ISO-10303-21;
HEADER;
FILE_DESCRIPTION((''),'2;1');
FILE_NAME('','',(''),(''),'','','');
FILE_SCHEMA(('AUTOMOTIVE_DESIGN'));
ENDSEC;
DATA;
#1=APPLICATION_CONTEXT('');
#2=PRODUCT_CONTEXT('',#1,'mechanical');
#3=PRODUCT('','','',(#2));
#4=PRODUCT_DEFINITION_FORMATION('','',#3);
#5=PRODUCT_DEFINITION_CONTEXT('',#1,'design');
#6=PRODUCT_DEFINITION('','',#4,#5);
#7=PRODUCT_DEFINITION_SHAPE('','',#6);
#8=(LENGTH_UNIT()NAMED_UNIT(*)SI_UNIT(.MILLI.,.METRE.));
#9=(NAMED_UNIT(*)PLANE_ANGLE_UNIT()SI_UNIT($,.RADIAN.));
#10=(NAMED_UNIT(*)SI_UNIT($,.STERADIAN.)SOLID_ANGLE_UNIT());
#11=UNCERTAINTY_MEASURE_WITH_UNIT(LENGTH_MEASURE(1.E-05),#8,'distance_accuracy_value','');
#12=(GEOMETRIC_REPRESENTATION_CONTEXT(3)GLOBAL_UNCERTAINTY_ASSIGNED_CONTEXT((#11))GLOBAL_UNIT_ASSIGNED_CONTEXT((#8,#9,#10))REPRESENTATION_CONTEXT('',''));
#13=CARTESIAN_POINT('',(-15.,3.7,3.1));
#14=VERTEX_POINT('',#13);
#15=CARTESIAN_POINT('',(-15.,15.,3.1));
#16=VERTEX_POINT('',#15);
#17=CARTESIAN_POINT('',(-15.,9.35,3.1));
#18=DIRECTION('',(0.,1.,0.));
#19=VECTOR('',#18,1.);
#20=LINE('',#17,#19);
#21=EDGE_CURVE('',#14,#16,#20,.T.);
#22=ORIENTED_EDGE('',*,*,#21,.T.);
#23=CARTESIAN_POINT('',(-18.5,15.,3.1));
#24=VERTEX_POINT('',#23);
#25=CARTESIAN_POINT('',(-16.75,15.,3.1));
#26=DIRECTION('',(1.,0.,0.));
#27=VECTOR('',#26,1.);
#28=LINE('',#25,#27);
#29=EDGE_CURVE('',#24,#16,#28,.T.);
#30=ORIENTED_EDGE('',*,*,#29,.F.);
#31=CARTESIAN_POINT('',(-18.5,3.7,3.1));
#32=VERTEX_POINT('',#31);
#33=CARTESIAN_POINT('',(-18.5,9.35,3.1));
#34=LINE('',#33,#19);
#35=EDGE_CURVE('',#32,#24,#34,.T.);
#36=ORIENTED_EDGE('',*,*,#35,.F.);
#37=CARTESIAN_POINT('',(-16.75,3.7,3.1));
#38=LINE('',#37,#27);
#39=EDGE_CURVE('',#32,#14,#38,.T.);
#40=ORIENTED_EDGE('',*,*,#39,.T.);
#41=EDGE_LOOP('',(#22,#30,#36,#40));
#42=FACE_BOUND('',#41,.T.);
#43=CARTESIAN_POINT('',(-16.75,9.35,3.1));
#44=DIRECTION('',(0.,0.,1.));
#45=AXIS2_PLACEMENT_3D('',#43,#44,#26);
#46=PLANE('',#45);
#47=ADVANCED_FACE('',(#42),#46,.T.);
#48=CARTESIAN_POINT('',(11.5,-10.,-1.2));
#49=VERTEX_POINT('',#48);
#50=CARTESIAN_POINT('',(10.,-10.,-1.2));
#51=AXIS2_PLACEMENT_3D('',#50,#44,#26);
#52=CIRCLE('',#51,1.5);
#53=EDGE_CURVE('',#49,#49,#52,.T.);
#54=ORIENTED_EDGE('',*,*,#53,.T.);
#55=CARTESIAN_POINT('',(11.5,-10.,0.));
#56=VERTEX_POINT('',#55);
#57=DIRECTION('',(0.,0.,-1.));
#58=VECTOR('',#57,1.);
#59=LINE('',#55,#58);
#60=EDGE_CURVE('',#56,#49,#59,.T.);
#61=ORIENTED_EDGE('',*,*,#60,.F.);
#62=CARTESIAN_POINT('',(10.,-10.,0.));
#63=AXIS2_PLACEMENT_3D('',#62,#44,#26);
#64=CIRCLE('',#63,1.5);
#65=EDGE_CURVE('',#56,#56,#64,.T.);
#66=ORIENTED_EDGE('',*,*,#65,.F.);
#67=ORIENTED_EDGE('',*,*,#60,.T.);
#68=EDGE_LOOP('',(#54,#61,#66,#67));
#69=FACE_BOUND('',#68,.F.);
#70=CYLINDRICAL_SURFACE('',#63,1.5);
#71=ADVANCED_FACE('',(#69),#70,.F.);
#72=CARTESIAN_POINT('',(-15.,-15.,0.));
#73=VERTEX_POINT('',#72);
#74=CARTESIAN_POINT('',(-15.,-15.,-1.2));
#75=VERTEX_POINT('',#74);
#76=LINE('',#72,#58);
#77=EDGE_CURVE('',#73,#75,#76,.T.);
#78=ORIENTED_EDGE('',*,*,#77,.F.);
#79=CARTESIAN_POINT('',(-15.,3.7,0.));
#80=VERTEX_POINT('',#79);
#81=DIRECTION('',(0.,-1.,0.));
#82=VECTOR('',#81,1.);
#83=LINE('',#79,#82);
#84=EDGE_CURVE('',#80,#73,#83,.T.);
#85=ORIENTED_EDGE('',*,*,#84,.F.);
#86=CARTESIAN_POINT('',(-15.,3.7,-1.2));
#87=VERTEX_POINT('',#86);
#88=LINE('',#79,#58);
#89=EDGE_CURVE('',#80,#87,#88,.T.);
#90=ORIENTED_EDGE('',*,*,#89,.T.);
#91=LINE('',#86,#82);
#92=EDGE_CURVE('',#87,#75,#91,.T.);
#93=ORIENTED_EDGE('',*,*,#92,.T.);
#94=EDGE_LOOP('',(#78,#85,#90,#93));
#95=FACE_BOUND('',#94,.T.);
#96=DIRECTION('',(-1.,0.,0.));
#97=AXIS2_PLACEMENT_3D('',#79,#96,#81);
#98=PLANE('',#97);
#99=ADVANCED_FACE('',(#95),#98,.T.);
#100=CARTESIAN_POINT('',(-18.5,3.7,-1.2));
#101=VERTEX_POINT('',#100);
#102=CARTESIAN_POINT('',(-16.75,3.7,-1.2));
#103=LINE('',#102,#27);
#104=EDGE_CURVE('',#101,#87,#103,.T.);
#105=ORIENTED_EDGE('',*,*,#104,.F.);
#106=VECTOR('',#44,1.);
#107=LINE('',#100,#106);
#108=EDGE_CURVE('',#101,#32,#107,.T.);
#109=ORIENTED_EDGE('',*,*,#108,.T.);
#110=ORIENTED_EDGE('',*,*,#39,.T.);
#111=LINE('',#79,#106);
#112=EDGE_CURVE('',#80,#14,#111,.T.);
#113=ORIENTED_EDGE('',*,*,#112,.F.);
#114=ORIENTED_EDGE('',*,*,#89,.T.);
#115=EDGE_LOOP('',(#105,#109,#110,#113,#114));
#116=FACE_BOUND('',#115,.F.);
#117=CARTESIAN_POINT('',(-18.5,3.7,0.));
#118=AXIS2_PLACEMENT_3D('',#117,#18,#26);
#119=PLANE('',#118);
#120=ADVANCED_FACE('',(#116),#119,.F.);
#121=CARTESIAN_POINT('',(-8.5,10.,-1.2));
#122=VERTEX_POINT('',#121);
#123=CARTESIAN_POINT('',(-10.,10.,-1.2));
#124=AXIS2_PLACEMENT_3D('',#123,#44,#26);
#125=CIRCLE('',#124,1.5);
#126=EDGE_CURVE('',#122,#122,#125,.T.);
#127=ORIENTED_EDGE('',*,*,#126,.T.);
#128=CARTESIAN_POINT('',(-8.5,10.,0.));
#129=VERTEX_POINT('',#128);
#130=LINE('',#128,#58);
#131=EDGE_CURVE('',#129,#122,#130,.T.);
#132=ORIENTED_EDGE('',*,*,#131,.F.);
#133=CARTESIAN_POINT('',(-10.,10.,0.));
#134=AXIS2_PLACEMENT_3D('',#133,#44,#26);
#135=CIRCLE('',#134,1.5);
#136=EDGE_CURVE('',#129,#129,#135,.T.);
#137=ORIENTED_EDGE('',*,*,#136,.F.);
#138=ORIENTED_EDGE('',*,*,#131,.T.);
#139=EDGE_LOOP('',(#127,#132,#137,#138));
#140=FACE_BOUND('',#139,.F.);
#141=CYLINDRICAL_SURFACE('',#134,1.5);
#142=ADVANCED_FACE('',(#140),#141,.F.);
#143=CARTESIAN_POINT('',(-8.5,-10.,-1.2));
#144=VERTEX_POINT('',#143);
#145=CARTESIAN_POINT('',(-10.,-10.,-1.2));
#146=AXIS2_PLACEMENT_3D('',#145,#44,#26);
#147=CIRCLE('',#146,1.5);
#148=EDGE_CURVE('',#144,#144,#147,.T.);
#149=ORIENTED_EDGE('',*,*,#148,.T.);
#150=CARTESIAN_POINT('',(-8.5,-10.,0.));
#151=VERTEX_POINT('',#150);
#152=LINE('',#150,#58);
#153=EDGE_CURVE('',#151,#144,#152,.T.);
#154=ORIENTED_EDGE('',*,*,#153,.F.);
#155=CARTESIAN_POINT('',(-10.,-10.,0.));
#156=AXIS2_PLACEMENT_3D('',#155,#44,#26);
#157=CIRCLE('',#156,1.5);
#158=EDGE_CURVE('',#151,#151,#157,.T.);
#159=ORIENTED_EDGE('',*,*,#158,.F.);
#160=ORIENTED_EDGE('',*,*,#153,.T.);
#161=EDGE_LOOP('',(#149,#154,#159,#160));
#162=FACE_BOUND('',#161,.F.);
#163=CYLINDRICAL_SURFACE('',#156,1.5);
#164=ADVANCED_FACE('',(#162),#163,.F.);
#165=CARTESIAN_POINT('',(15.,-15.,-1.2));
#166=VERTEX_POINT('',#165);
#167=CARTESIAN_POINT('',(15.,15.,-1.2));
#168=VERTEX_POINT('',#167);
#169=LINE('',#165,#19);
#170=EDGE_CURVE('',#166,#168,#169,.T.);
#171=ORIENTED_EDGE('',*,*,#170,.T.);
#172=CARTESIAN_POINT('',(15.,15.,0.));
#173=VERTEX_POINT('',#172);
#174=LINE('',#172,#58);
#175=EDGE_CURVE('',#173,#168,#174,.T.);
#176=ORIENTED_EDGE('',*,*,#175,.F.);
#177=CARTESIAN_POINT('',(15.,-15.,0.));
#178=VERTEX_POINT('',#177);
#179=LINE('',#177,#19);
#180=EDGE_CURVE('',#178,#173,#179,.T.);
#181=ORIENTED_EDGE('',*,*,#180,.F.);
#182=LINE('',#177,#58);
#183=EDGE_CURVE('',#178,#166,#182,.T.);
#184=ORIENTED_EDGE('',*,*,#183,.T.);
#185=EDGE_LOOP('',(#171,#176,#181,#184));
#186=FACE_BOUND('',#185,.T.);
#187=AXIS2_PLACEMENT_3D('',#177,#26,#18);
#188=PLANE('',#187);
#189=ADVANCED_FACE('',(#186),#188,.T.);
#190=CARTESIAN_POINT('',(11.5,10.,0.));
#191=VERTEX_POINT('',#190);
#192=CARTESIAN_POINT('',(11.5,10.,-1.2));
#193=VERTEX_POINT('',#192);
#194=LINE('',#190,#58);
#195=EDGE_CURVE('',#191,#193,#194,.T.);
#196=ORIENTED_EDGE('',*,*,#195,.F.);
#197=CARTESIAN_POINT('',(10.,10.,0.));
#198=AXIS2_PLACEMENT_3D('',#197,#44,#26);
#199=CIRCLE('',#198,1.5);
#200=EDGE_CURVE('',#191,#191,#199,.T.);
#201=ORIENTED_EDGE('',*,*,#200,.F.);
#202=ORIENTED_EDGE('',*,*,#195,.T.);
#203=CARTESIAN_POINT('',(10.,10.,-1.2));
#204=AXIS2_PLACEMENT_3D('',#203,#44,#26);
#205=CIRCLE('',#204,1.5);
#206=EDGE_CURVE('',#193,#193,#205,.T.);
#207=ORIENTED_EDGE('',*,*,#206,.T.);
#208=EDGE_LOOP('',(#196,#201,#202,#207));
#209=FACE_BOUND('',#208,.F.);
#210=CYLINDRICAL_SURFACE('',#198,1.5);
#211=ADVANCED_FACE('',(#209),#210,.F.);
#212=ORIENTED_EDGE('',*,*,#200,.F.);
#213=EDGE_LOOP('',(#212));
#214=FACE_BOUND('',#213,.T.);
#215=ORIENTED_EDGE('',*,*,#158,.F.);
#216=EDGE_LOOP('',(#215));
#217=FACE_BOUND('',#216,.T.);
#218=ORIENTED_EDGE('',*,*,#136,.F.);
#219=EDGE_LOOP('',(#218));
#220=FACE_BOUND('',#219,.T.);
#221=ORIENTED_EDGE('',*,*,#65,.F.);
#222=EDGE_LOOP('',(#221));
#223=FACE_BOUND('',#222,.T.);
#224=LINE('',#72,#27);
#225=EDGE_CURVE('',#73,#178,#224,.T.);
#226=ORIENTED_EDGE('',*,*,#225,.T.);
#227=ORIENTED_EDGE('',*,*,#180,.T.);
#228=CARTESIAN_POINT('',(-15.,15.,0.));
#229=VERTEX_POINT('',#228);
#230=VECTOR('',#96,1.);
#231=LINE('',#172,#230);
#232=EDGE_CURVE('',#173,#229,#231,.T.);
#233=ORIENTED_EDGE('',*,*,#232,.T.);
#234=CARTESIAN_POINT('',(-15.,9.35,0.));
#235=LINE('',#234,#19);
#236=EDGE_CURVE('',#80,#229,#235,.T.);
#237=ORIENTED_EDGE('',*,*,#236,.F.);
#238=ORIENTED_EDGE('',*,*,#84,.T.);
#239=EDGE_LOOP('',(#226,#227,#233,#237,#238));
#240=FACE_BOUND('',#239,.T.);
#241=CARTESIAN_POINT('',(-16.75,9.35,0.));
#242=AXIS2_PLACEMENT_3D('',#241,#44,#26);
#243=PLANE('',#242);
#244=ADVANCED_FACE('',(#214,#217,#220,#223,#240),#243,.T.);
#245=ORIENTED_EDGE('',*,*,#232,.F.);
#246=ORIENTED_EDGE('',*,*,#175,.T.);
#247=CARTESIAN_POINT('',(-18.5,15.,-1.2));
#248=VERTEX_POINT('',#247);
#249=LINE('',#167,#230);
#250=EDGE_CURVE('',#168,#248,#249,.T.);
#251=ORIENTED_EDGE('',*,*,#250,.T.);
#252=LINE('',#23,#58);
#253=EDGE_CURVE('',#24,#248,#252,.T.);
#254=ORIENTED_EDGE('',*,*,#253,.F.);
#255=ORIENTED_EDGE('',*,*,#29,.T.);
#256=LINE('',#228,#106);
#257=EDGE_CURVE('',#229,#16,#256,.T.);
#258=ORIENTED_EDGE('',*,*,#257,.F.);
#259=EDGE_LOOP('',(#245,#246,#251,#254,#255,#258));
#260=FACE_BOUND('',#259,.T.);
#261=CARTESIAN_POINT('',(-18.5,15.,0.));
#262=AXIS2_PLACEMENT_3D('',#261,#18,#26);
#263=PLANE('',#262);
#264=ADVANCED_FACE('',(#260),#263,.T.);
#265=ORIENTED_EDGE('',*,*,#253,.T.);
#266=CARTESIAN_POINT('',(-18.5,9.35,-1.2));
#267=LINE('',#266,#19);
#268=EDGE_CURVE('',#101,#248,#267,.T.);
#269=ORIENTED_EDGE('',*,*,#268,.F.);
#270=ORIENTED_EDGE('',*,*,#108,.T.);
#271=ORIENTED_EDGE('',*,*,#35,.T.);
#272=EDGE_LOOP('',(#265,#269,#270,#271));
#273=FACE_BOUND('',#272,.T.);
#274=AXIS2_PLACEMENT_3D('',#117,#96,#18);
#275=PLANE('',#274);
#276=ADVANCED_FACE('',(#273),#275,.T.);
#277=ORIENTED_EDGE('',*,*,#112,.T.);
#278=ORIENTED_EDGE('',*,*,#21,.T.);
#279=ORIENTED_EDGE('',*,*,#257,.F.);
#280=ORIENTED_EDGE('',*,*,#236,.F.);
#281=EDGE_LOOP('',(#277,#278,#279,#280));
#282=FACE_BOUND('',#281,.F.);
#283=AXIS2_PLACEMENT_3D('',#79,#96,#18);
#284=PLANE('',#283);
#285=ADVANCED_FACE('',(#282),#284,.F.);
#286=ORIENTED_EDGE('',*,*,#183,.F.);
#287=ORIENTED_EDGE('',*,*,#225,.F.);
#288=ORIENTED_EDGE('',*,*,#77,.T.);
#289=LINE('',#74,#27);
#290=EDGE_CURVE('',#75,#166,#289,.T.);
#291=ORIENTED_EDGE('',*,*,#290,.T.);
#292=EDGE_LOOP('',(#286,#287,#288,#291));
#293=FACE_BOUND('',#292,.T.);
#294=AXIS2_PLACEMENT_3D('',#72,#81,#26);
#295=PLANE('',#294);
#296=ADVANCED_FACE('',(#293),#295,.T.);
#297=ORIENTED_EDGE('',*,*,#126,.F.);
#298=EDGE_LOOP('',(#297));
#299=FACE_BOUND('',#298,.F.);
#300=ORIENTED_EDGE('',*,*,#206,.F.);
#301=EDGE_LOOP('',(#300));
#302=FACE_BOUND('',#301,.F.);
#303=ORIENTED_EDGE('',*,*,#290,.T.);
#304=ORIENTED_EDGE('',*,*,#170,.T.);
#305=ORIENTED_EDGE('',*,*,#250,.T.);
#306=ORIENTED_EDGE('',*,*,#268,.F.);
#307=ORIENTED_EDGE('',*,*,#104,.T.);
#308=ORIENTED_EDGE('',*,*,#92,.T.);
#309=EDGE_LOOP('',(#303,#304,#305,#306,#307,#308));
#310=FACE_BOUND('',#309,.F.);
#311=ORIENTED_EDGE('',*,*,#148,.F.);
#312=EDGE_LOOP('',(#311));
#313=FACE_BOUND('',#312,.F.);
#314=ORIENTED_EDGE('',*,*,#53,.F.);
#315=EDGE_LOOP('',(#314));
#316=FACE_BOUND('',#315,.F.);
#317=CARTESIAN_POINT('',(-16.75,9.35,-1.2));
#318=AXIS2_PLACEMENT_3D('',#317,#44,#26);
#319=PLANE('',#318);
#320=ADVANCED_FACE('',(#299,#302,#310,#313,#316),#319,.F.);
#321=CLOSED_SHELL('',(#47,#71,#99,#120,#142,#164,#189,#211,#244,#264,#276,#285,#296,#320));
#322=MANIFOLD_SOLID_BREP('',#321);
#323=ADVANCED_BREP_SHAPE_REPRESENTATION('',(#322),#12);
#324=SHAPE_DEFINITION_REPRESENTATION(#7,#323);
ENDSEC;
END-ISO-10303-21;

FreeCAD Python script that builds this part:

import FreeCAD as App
import Part
import Sketcher
from FreeCAD import Vector

doc = App.newDocument("Part")
body = doc.addObject("PartDesign::Body", "Body")

sketch1 = body.newObject("Sketcher::SketchObject", "Sketch")
sketch1.AttachmentSupport = (doc.getObject("XY_Plane"), [""])
sketch1.MapMode = "FlatFace"
sketch1.addGeometry(Part.LineSegment(Vector(-18.5, 15, 0), Vector(-18.5, 3.7, 0)), False)
sketch1.addGeometry(Part.LineSegment(Vector(-18.5, 3.7, 0), Vector(-15, 3.7, 0)), False)
sketch1.addGeometry(Part.LineSegment(Vector(-15, 3.7, 0), Vector(-15, -15, 0)), False)
sketch1.addGeometry(Part.LineSegment(Vector(-15, -15, 0), Vector(15, -15, 0)), False)
sketch1.addGeometry(Part.LineSegment(Vector(15, -15, 0), Vector(15, 15, 0)), False)
sketch1.addGeometry(Part.LineSegment(Vector(15, 15, 0), Vector(-18.5, 15, 0)), False)
sketch1.addGeometry(Part.Circle(Vector(-10, -10, 0), Vector(0, 0, 1), 1.5), False)
sketch1.addGeometry(Part.Circle(Vector(10, -10, 0), Vector(0, 0, 1), 1.5), False)
sketch1.addGeometry(Part.Circle(Vector(-10, 10, 0), Vector(0, 0, 1), 1.5), False)
sketch1.addGeometry(Part.Circle(Vector(10, 10, 0), Vector(0, 0, 1), 1.5), False)
sketch1.addConstraint(Sketcher.Constraint("Coincident", 0, 2, 1, 1))
sketch1.addConstraint(Sketcher.Constraint("Coincident", 1, 2, 2, 1))
sketch1.addConstraint(Sketcher.Constraint("Coincident", 2, 2, 3, 1))
sketch1.addConstraint(Sketcher.Constraint("Coincident", 3, 2, 4, 1))
sketch1.addConstraint(Sketcher.Constraint("Coincident", 4, 2, 5, 1))
sketch1.addConstraint(Sketcher.Constraint("Coincident", 5, 2, 0, 1))
sketch1.addConstraint(Sketcher.Constraint("Vertical", 0))
sketch1.addConstraint(Sketcher.Constraint("Horizontal", 1))
sketch1.addConstraint(Sketcher.Constraint("Vertical", 2))
sketch1.addConstraint(Sketcher.Constraint("Horizontal", 3))
sketch1.addConstraint(Sketcher.Constraint("Vertical", 4))
sketch1.addConstraint(Sketcher.Constraint("Horizontal", 5))
sketch1.addConstraint(Sketcher.Constraint("Equal", 6, 7))
sketch1.addConstraint(Sketcher.Constraint("Equal", 7, 8))
sketch1.addConstraint(Sketcher.Constraint("Equal", 8, 9))
sketch1.addConstraint(Sketcher.Constraint("Symmetric", 7, 3, 8, 3, -1, 1))
sketch1.addConstraint(Sketcher.Constraint("Symmetric", 6, 3, 9, 3, -1, 1))
sketch1.addConstraint(Sketcher.Constraint("Symmetric", 2, 2, 4, 2, -1, 1))
sketch1.addConstraint(Sketcher.Constraint("Symmetric", 6, 3, 7, 3, -2))
sketch1.addConstraint(Sketcher.Constraint("Equal", 3, 4))
sketch1.addConstraint(Sketcher.Constraint("Diameter", 6, 3.0))
sketch1.addConstraint(Sketcher.Constraint("DistanceX", 3, 1, 3, 2, 30.0))
sketch1.addConstraint(Sketcher.Constraint("DistanceX", 1, 1, 1, 2, 3.5))
sketch1.addConstraint(Sketcher.Constraint("DistanceY", 0, 2, 0, 1, 11.3))
sketch1.addConstraint(Sketcher.Constraint("DistanceX", 6, 3, -1, 1, 10.0))
sketch1.addConstraint(Sketcher.Constraint("DistanceY", 6, 3, -1, 1, 10.0))
pad1 = body.newObject("PartDesign::Pad", "Pad")
pad1.Profile = sketch1
pad1.Length = 1.2
pad1.Reversed = True

sketch2 = body.newObject("Sketcher::SketchObject", "Sketch001")
sketch2.AttachmentSupport = (doc.getObject("XY_Plane"), [""])
sketch2.MapMode = "FlatFace"
sketch2.addGeometry(Part.LineSegment(Vector(-18.5, 15, 0), Vector(-18.5, 3.7, 0)), False)
sketch2.addGeometry(Part.LineSegment(Vector(-18.5, 3.7, 0), Vector(-15, 3.7, 0)), False)
sketch2.addGeometry(Part.LineSegment(Vector(-15, 3.7, 0), Vector(-15, 15, 0)), False)
sketch2.addGeometry(Part.LineSegment(Vector(-15, 15, 0), Vector(-18.5, 15, 0)), False)
sketch2.addConstraint(Sketcher.Constraint("Coincident", 0, 2, 1, 1))
sketch2.addConstraint(Sketcher.Constraint("Coincident", 1, 2, 2, 1))
sketch2.addConstraint(Sketcher.Constraint("Coincident", 2, 2, 3, 1))
sketch2.addConstraint(Sketcher.Constraint("Coincident", 3, 2, 0, 1))
sketch2.addConstraint(Sketcher.Constraint("Vertical", 0))
sketch2.addConstraint(Sketcher.Constraint("Horizontal", 1))
sketch2.addConstraint(Sketcher.Constraint("Vertical", 2))
sketch2.addConstraint(Sketcher.Constraint("Horizontal", 3))
sketch2.addConstraint(Sketcher.Constraint("DistanceX", 1, 1, 1, 2, 3.5))
sketch2.addConstraint(Sketcher.Constraint("DistanceY", 0, 2, 0, 1, 11.3))
sketch2.addConstraint(Sketcher.Constraint("DistanceX", 1, 2, -1, 1, 15.0))
sketch2.addConstraint(Sketcher.Constraint("DistanceY", -1, 1, 2, 2, 15.0))
pad2 = body.newObject("PartDesign::Pad", "Pad001")
pad2.Profile = sketch2
pad2.Length = 3.1

doc.recompute()
